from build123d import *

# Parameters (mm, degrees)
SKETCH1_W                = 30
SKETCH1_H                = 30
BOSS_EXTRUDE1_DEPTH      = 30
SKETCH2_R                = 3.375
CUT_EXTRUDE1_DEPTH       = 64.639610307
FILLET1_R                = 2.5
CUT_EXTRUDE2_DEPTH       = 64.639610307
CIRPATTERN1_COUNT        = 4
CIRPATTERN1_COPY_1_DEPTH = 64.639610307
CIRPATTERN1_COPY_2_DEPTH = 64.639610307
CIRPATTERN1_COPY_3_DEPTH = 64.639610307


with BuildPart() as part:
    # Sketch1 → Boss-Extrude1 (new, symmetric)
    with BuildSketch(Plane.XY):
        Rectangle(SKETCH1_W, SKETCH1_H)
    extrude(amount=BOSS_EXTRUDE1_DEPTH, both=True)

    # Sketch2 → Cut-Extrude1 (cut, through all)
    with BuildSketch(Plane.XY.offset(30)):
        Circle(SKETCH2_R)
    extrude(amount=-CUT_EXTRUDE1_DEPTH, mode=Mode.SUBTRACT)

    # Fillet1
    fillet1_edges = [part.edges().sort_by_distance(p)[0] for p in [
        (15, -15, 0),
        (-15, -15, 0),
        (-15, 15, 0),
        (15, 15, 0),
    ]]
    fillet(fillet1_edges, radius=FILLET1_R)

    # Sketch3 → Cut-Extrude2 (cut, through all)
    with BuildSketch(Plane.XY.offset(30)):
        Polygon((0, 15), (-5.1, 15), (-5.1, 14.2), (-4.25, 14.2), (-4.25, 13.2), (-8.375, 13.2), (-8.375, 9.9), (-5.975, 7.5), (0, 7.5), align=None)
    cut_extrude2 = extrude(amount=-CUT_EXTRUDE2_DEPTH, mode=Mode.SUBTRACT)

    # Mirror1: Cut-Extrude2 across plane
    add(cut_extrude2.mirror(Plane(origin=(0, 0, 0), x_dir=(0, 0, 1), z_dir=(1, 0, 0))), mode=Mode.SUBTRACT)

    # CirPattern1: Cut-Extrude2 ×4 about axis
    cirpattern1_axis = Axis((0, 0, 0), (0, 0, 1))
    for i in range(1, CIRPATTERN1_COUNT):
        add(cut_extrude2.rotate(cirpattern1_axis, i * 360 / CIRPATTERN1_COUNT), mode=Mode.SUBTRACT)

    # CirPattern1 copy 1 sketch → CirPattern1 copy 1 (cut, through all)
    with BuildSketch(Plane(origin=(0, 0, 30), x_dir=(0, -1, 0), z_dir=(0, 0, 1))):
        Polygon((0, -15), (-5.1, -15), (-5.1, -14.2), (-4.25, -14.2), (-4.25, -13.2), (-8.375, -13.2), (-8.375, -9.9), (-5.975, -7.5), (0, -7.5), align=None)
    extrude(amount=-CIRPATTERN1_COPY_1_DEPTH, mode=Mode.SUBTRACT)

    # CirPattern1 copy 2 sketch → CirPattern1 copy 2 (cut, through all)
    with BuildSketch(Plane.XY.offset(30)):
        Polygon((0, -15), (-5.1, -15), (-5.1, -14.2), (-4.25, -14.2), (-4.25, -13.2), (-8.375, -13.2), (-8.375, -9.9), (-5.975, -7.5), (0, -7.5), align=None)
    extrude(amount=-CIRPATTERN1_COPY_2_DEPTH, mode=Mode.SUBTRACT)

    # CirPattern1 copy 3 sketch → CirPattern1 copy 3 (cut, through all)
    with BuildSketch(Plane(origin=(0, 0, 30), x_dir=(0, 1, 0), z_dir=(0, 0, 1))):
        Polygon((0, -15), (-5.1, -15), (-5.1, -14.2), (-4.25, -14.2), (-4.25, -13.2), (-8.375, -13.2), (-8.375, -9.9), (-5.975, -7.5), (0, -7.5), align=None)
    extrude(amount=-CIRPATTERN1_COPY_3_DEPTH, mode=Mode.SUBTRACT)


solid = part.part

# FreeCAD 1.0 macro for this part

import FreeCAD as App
import Part
import Sketcher
from FreeCAD import Vector
Q = App.Units.Quantity


def edges_at(feature, points):
    """Names of the edges that pass closest to the given points."""
    edges = feature.Shape.Edges
    near = lambda p: min(range(len(edges)), key=lambda i: edges[i].distToShape(Part.Vertex(*p))[0])
    return sorted({f"Edge{near(p) + 1}" for p in points})

doc = App.newDocument("Part")
body = doc.addObject("PartDesign::Body", "Body")

# Sketch on XY plane
sketch1 = body.newObject("Sketcher::SketchObject", "Sketch")
sketch1.AttachmentSupport = (doc.getObject("XY_Plane"), [""])
sketch1.MapMode = "FlatFace"
sketch1.addGeometry([
    Part.LineSegment(Vector(-15, 15, 0), Vector(-15, -15, 0)),
    Part.LineSegment(Vector(-15, -15, 0), Vector(15, -15, 0)),
    Part.LineSegment(Vector(15, -15, 0), Vector(15, 15, 0)),
    Part.LineSegment(Vector(15, 15, 0), Vector(-15, 15, 0)),
], False)
sketch1.addConstraint([
    Sketcher.Constraint("Coincident", 0, 2, 1, 1),
    Sketcher.Constraint("Coincident", 1, 2, 2, 1),
    Sketcher.Constraint("Coincident", 2, 2, 3, 1),
    Sketcher.Constraint("Coincident", 3, 2, 0, 1),
    Sketcher.Constraint("Vertical", 0),
    Sketcher.Constraint("Horizontal", 1),
    Sketcher.Constraint("Vertical", 2),
    Sketcher.Constraint("Horizontal", 3),
    Sketcher.Constraint("Symmetric", 0, 2, 2, 2, -1, 1),
    Sketcher.Constraint("Equal", 3, 0),
    Sketcher.Constraint("DistanceX", 1, 1, 1, 2, Q("30 mm")),
])
pad1 = body.newObject("PartDesign::Pad", "Pad")
pad1.Profile = sketch1
pad1.Length = 60
pad1.Midplane = True

# Sketch on XY plane
sketch2 = body.newObject("Sketcher::SketchObject", "Sketch001")
sketch2.AttachmentSupport = (doc.getObject("XY_Plane"), [""])
sketch2.MapMode = "FlatFace"
sketch2.AttachmentOffset = App.Placement(Vector(0, 0, 30), App.Rotation())
sketch2.addGeometry(Part.Circle(Vector(0, 0, 0), Vector(0, 0, 1), 3.4), False)
sketch2.addConstraint([
    Sketcher.Constraint("Coincident", 0, 3, -1, 1),
    Sketcher.Constraint("Diameter", 0, Q("6.75 mm")),
])
pocket1 = body.newObject("PartDesign::Pocket", "Pocket")
pocket1.Profile = sketch2
pocket1.Type = "ThroughAll"
doc.recompute()

fillet = body.newObject("PartDesign::Fillet", "Fillet")
fillet.Base = (pocket1, edges_at(pocket1, [
    (15, -15, 0),
    (-15, -15, 0),
    (-15, 15, 0),
    (15, 15, 0),
]))
fillet.Radius = 2.5

# Sketch on XY plane
sketch3 = body.newObject("Sketcher::SketchObject", "Sketch002")
sketch3.AttachmentSupport = (doc.getObject("XY_Plane"), [""])
sketch3.MapMode = "FlatFace"
sketch3.AttachmentOffset = App.Placement(Vector(0, 0, 30), App.Rotation())
sketch3.addGeometry([
    Part.LineSegment(Vector(0, 15, 0), Vector(-5.1, 15, 0)),  # 0
    Part.LineSegment(Vector(-5.1, 15, 0), Vector(-5.1, 14.2, 0)),  # 1
    Part.LineSegment(Vector(-5.1, 14.2, 0), Vector(-4.2, 14.2, 0)),  # 2
    Part.LineSegment(Vector(-4.2, 14.2, 0), Vector(-4.2, 13.2, 0)),  # 3
    Part.LineSegment(Vector(-4.2, 13.2, 0), Vector(-8.4, 13.2, 0)),  # 4
    Part.LineSegment(Vector(-8.4, 13.2, 0), Vector(-8.4, 9.9, 0)),  # 5
    Part.LineSegment(Vector(-8.4, 9.9, 0), Vector(-6, 7.5, 0)),  # 6
    Part.LineSegment(Vector(-6, 7.5, 0), Vector(0, 7.5, 0)),  # 7
    Part.LineSegment(Vector(0, 7.5, 0), Vector(0, 15, 0)),  # 8
], False)
sketch3.addConstraint([
    Sketcher.Constraint("Coincident", 0, 2, 1, 1),
    Sketcher.Constraint("Coincident", 1, 2, 2, 1),
    Sketcher.Constraint("Coincident", 2, 2, 3, 1),
    Sketcher.Constraint("Coincident", 3, 2, 4, 1),
    Sketcher.Constraint("Coincident", 4, 2, 5, 1),
    Sketcher.Constraint("Coincident", 5, 2, 6, 1),
    Sketcher.Constraint("Coincident", 6, 2, 7, 1),
    Sketcher.Constraint("Coincident", 7, 2, 8, 1),
    Sketcher.Constraint("Coincident", 8, 2, 0, 1),
    Sketcher.Constraint("Horizontal", 0),
    Sketcher.Constraint("Vertical", 1),
    Sketcher.Constraint("Horizontal", 2),
    Sketcher.Constraint("Vertical", 3),
    Sketcher.Constraint("Horizontal", 4),
    Sketcher.Constraint("Vertical", 5),
    Sketcher.Constraint("Horizontal", 7),
    Sketcher.Constraint("Vertical", 8),
    Sketcher.Constraint("PointOnObject", 7, 2, -2),
    Sketcher.Constraint("DistanceY", 3, 2, 3, 1, Q("1 mm")),
    Sketcher.Constraint("Angle", 6, Q("-45 deg")),
    Sketcher.Constraint("DistanceX", 0, 2, 0, 1, Q("5.1 mm")),
    Sketcher.Constraint("DistanceY", 1, 2, 1, 1, Q("0.8 mm")),
    Sketcher.Constraint("DistanceY", 5, 2, 5, 1, Q("3.3 mm")),
    Sketcher.Constraint("DistanceY", 8, 1, 8, 2, Q("7.5 mm")),
    Sketcher.Constraint("DistanceY", -1, 1, 0, 2, Q("15 mm")),
    Sketcher.Constraint("DistanceX", 2, 1, 2, 2, Q("0.85 mm")),
    Sketcher.Constraint("DistanceX", 4, 2, 4, 1, Q("4.125 mm")),
])
pocket2 = body.newObject("PartDesign::Pocket", "Pocket001")
pocket2.Profile = sketch3
pocket2.Type = "ThroughAll"
doc.recompute()

mirrored = body.newObject("PartDesign::Mirrored", "Mirrored")
mirrored.Originals = [pocket2]
mirrored.MirrorPlane = (doc.getObject("YZ_Plane"), [""])
body.Tip = mirrored
doc.recompute()

polarpattern = body.newObject("PartDesign::PolarPattern", "PolarPattern")
polarpattern.Originals = [pocket2]
polarpattern.Axis = (doc.getObject("Z_Axis"), [""])
polarpattern.Angle = 360
polarpattern.Occurrences = 4
body.Tip = polarpattern

# Sketch on XY plane
sketch4 = body.newObject("Sketcher::SketchObject", "Sketch003")
sketch4.AttachmentSupport = (doc.getObject("XY_Plane"), [""])
sketch4.MapMode = "FlatFace"
sketch4.AttachmentOffset = App.Placement(Vector(0, 0, 30), App.Rotation())
sketch4.addGeometry([
    Part.LineSegment(Vector(-15, 5.1, 0), Vector(-15, 0, 0)),  # 0
    Part.LineSegment(Vector(-15, 0, 0), Vector(-7.5, 0, 0)),  # 1
    Part.LineSegment(Vector(-7.5, 0, 0), Vector(-7.5, 6, 0)),  # 2
    Part.LineSegment(Vector(-7.5, 6, 0), Vector(-9.9, 8.4, 0)),  # 3
    Part.LineSegment(Vector(-9.9, 8.4, 0), Vector(-13.2, 8.4, 0)),  # 4
    Part.LineSegment(Vector(-13.2, 8.4, 0), Vector(-13.2, 4.2, 0)),  # 5
    Part.LineSegment(Vector(-13.2, 4.2, 0), Vector(-14.2, 4.2, 0)),  # 6
    Part.LineSegment(Vector(-14.2, 4.2, 0), Vector(-14.2, 5.1, 0)),  # 7
    Part.LineSegment(Vector(-14.2, 5.1, 0), Vector(-15, 5.1, 0)),  # 8
], False)
sketch4.addConstraint([
    Sketcher.Constraint("Coincident", 0, 2, 1, 1),
    Sketcher.Constraint("Coincident", 1, 2, 2, 1),
    Sketcher.Constraint("Coincident", 2, 2, 3, 1),
    Sketcher.Constraint("Coincident", 3, 2, 4, 1),
    Sketcher.Constraint("Coincident", 4, 2, 5, 1),
    Sketcher.Constraint("Coincident", 5, 2, 6, 1),
    Sketcher.Constraint("Coincident", 6, 2, 7, 1),
    Sketcher.Constraint("Coincident", 7, 2, 8, 1),
    Sketcher.Constraint("Coincident", 8, 2, 0, 1),
    Sketcher.Constraint("Vertical", 0),
    Sketcher.Constraint("Horizontal", 1),
    Sketcher.Constraint("Vertical", 2),
    Sketcher.Constraint("Horizontal", 4),
    Sketcher.Constraint("Vertical", 5),
    Sketcher.Constraint("Horizontal", 6),
    Sketcher.Constraint("Vertical", 7),
    Sketcher.Constraint("Horizontal", 8),
    Sketcher.Constraint("PointOnObject", 0, 2, -1),
    Sketcher.Constraint("DistanceX", 6, 2, 6, 1, Q("1 mm")),
    Sketcher.Constraint("Angle", 3, Q("135 deg")),
    Sketcher.Constraint("DistanceX", 1, 1, 1, 2, Q("7.5 mm")),
    Sketcher.Constraint("DistanceX", 4, 2, 4, 1, Q("3.3 mm")),
    Sketcher.Constraint("DistanceX", 8, 2, 8, 1, Q("0.8 mm")),
    Sketcher.Constraint("DistanceY", 0, 2, 0, 1, Q("5.1 mm")),
    Sketcher.Constraint("DistanceX", 0, 2, -1, 1, Q("15 mm")),
    Sketcher.Constraint("DistanceY", 7, 1, 7, 2, Q("0.85 mm")),
    Sketcher.Constraint("DistanceY", 2, 1, 2, 2, Q("5.975 mm")),
])
pocket3 = body.newObject("PartDesign::Pocket", "Pocket002")
pocket3.Profile = sketch4
pocket3.Type = "ThroughAll"

# Sketch on XY plane
sketch5 = body.newObject("Sketcher::SketchObject", "Sketch004")
sketch5.AttachmentSupport = (doc.getObject("XY_Plane"), [""])
sketch5.MapMode = "FlatFace"
sketch5.AttachmentOffset = App.Placement(Vector(0, 0, 30), App.Rotation())
sketch5.addGeometry([
    Part.LineSegment(Vector(-5.1, -15, 0), Vector(0, -15, 0)),  # 0
    Part.LineSegment(Vector(0, -15, 0), Vector(0, -7.5, 0)),  # 1
    Part.LineSegment(Vector(0, -7.5, 0), Vector(-6, -7.5, 0)),  # 2
    Part.LineSegment(Vector(-6, -7.5, 0), Vector(-8.4, -9.9, 0)),  # 3
    Part.LineSegment(Vector(-8.4, -9.9, 0), Vector(-8.4, -13.2, 0)),  # 4
    Part.LineSegment(Vector(-8.4, -13.2, 0), Vector(-4.2, -13.2, 0)),  # 5
    Part.LineSegment(Vector(-4.2, -13.2, 0), Vector(-4.2, -14.2, 0)),  # 6
    Part.LineSegment(Vector(-4.2, -14.2, 0), Vector(-5.1, -14.2, 0)),  # 7
    Part.LineSegment(Vector(-5.1, -14.2, 0), Vector(-5.1, -15, 0)),  # 8
], False)
sketch5.addConstraint([
    Sketcher.Constraint("Coincident", 0, 2, 1, 1),
    Sketcher.Constraint("Coincident", 1, 2, 2, 1),
    Sketcher.Constraint("Coincident", 2, 2, 3, 1),
    Sketcher.Constraint("Coincident", 3, 2, 4, 1),
    Sketcher.Constraint("Coincident", 4, 2, 5, 1),
    Sketcher.Constraint("Coincident", 5, 2, 6, 1),
    Sketcher.Constraint("Coincident", 6, 2, 7, 1),
    Sketcher.Constraint("Coincident", 7, 2, 8, 1),
    Sketcher.Constraint("Coincident", 8, 2, 0, 1),
    Sketcher.Constraint("Horizontal", 0),
    Sketcher.Constraint("Vertical", 1),
    Sketcher.Constraint("Horizontal", 2),
    Sketcher.Constraint("Vertical", 4),
    Sketcher.Constraint("Horizontal", 5),
    Sketcher.Constraint("Vertical", 6),
    Sketcher.Constraint("Horizontal", 7),
    Sketcher.Constraint("Vertical", 8),
    Sketcher.Constraint("PointOnObject", 0, 2, -2),
    Sketcher.Constraint("DistanceY", 6, 2, 6, 1, Q("1 mm")),
    Sketcher.Constraint("Angle", 3, Q("-135 deg")),
    Sketcher.Constraint("DistanceX", 0, 1, 0, 2, Q("5.1 mm")),
    Sketcher.Constraint("DistanceY", 1, 1, 1, 2, Q("7.5 mm")),
    Sketcher.Constraint("DistanceY", 4, 2, 4, 1, Q("3.3 mm")),
    Sketcher.Constraint("DistanceY", 8, 2, 8, 1, Q("0.8 mm")),
    Sketcher.Constraint("DistanceY", 0, 2, -1, 1, Q("15 mm")),
    Sketcher.Constraint("DistanceX", 7, 2, 7, 1, Q("0.85 mm")),
    Sketcher.Constraint("DistanceX", 2, 2, 2, 1, Q("5.975 mm")),
])
pocket4 = body.newObject("PartDesign::Pocket", "Pocket003")
pocket4.Profile = sketch5
pocket4.Type = "ThroughAll"

# Sketch on XY plane
sketch6 = body.newObject("Sketcher::SketchObject", "Sketch005")
sketch6.AttachmentSupport = (doc.getObject("XY_Plane"), [""])
sketch6.MapMode = "FlatFace"
sketch6.AttachmentOffset = App.Placement(Vector(0, 0, 30), App.Rotation())
sketch6.addGeometry([
    Part.LineSegment(Vector(15, -5.1, 0), Vector(15, 0, 0)),  # 0
    Part.LineSegment(Vector(15, 0, 0), Vector(7.5, 0, 0)),  # 1
    Part.LineSegment(Vector(7.5, 0, 0), Vector(7.5, -6, 0)),  # 2
    Part.LineSegment(Vector(7.5, -6, 0), Vector(9.9, -8.4, 0)),  # 3
    Part.LineSegment(Vector(9.9, -8.4, 0), Vector(13.2, -8.4, 0)),  # 4
    Part.LineSegment(Vector(13.2, -8.4, 0), Vector(13.2, -4.2, 0)),  # 5
    Part.LineSegment(Vector(13.2, -4.2, 0), Vector(14.2, -4.2, 0)),  # 6
    Part.LineSegment(Vector(14.2, -4.2, 0), Vector(14.2, -5.1, 0)),  # 7
    Part.LineSegment(Vector(14.2, -5.1, 0), Vector(15, -5.1, 0)),  # 8
], False)
sketch6.addConstraint([
    Sketcher.Constraint("Coincident", 0, 2, 1, 1),
    Sketcher.Constraint("Coincident", 1, 2, 2, 1),
    Sketcher.Constraint("Coincident", 2, 2, 3, 1),
    Sketcher.Constraint("Coincident", 3, 2, 4, 1),
    Sketcher.Constraint("Coincident", 4, 2, 5, 1),
    Sketcher.Constraint("Coincident", 5, 2, 6, 1),
    Sketcher.Constraint("Coincident", 6, 2, 7, 1),
    Sketcher.Constraint("Coincident", 7, 2, 8, 1),
    Sketcher.Constraint("Coincident", 8, 2, 0, 1),
    Sketcher.Constraint("Vertical", 0),
    Sketcher.Constraint("Horizontal", 1),
    Sketcher.Constraint("Vertical", 2),
    Sketcher.Constraint("Horizontal", 4),
    Sketcher.Constraint("Vertical", 5),
    Sketcher.Constraint("Horizontal", 6),
    Sketcher.Constraint("Vertical", 7),
    Sketcher.Constraint("Horizontal", 8),
    Sketcher.Constraint("PointOnObject", 0, 2, -1),
    Sketcher.Constraint("DistanceX", 6, 1, 6, 2, Q("1 mm")),
    Sketcher.Constraint("Angle", 3, Q("-45 deg")),
    Sketcher.Constraint("DistanceX", 1, 2, 1, 1, Q("7.5 mm")),
    Sketcher.Constraint("DistanceX", 4, 1, 4, 2, Q("3.3 mm")),
    Sketcher.Constraint("DistanceX", 8, 1, 8, 2, Q("0.8 mm")),
    Sketcher.Constraint("DistanceY", 0, 1, 0, 2, Q("5.1 mm")),
    Sketcher.Constraint("DistanceX", -1, 1, 0, 2, Q("15 mm")),
    Sketcher.Constraint("DistanceY", 7, 2, 7, 1, Q("0.85 mm")),
    Sketcher.Constraint("DistanceY", 2, 2, 2, 1, Q("5.975 mm")),
])
pocket5 = body.newObject("PartDesign::Pocket", "Pocket004")
pocket5.Profile = sketch6
pocket5.Type = "ThroughAll"

doc.recompute()
